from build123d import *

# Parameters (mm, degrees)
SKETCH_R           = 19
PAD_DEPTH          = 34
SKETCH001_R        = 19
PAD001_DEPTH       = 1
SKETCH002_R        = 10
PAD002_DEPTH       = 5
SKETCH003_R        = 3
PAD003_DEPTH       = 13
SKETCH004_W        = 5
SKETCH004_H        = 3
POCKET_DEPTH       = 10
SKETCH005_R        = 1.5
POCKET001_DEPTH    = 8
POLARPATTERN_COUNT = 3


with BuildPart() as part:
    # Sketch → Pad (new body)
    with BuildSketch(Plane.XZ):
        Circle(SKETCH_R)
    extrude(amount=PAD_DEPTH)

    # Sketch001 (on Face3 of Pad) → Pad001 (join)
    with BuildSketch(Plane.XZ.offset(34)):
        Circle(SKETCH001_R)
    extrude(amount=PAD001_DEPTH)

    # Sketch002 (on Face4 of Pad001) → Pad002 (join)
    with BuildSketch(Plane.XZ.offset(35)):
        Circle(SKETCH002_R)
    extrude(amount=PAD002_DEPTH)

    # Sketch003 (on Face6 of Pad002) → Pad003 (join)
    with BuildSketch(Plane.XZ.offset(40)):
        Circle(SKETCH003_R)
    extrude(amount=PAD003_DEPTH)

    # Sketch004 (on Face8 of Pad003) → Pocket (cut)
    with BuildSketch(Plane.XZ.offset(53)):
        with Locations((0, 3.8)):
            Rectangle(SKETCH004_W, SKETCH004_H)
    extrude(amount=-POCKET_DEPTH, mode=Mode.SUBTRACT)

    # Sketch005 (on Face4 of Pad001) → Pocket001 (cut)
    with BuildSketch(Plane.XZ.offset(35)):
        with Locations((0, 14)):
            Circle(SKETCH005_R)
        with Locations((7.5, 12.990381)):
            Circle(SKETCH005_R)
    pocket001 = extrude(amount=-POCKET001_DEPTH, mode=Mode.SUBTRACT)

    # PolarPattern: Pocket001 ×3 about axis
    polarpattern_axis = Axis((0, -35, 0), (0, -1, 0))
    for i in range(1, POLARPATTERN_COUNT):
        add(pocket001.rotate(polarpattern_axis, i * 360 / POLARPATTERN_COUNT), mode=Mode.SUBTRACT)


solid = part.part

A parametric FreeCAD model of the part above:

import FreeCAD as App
import Part
import Sketcher
Q = App.Units.Quantity

doc = App.newDocument("Part")
body = doc.addObject("PartDesign::Body", "Body")

# Sketch on XZ plane
sketch1 = doc.addObject("Sketcher::SketchObject", "Sketch")
body.addObject(sketch1)
sketch1.AttachmentSupport = (doc.XZ_Plane, [""])
sketch1.MapMode = "FlatFace"
sketch1.addGeometry(Part.Circle(App.Vector(0, 0, 0), App.Vector(0, 0, 1), 19), False)
sketch1.addConstraint([
    Sketcher.Constraint("Coincident", 0, 3, -1, 1),
    Sketcher.Constraint("Diameter", 0, Q("38 mm")),
])
pad1 = doc.addObject("PartDesign::Pad", "Pad")
body.addObject(pad1)
pad1.Profile = sketch1
pad1.Length = 34

# Sketch on XZ plane
sketch2 = doc.addObject("Sketcher::SketchObject", "Sketch001")
body.addObject(sketch2)
sketch2.AttachmentSupport = (doc.XZ_Plane, [""])
sketch2.MapMode = "FlatFace"
sketch2.AttachmentOffset = App.Placement(App.Vector(0, 0, 34), App.Rotation())
sketch2.addGeometry(Part.Circle(App.Vector(0, 0, 0), App.Vector(0, 0, 1), 19), False)
sketch2.addConstraint([
    Sketcher.Constraint("Coincident", 0, 3, -1, 1),
    Sketcher.Constraint("Diameter", 0, Q("38 mm")),
])
pad2 = doc.addObject("PartDesign::Pad", "Pad001")
body.addObject(pad2)
pad2.Profile = sketch2
pad2.Length = 1

# Sketch on XZ plane
sketch3 = doc.addObject("Sketcher::SketchObject", "Sketch002")
body.addObject(sketch3)
sketch3.AttachmentSupport = (doc.XZ_Plane, [""])
sketch3.MapMode = "FlatFace"
sketch3.AttachmentOffset = App.Placement(App.Vector(0, 0, 35), App.Rotation())
sketch3.addGeometry(Part.Circle(App.Vector(0, 0, 0), App.Vector(0, 0, 1), 10), False)
sketch3.addConstraint([
    Sketcher.Constraint("Coincident", 0, 3, -1, 1),
    Sketcher.Constraint("Diameter", 0, Q("20 mm")),
])
pad3 = doc.addObject("PartDesign::Pad", "Pad002")
body.addObject(pad3)
pad3.Profile = sketch3
pad3.Length = 5

# Sketch on XZ plane
sketch4 = doc.addObject("Sketcher::SketchObject", "Sketch003")
body.addObject(sketch4)
sketch4.AttachmentSupport = (doc.XZ_Plane, [""])
sketch4.MapMode = "FlatFace"
sketch4.AttachmentOffset = App.Placement(App.Vector(0, 0, 40), App.Rotation())
sketch4.addGeometry(Part.Circle(App.Vector(0, 0, 0), App.Vector(0, 0, 1), 3), False)
sketch4.addConstraint([
    Sketcher.Constraint("Coincident", 0, 3, -1, 1),
    Sketcher.Constraint("Diameter", 0, Q("6 mm")),
])
pad4 = doc.addObject("PartDesign::Pad", "Pad003")
body.addObject(pad4)
pad4.Profile = sketch4
pad4.Length = 13

# Sketch on XZ plane
sketch5 = doc.addObject("Sketcher::SketchObject", "Sketch004")
body.addObject(sketch5)
sketch5.AttachmentSupport = (doc.XZ_Plane, [""])
sketch5.MapMode = "FlatFace"
sketch5.AttachmentOffset = App.Placement(App.Vector(0, 0, 53), App.Rotation())
sketch5.addGeometry([
    Part.LineSegment(App.Vector(-2.5, 5.3, 0), App.Vector(-2.5, 2.3, 0)),
    Part.LineSegment(App.Vector(-2.5, 2.3, 0), App.Vector(2.5, 2.3, 0)),
    Part.LineSegment(App.Vector(2.5, 2.3, 0), App.Vector(2.5, 5.3, 0)),
    Part.LineSegment(App.Vector(2.5, 5.3, 0), App.Vector(-2.5, 5.3, 0)),
], False)
sketch5.addConstraint([
    Sketcher.Constraint("Coincident", 0, 2, 1, 1),
    Sketcher.Constraint("Coincident", 1, 2, 2, 1),
    Sketcher.Constraint("Coincident", 2, 2, 3, 1),
    Sketcher.Constraint("Coincident", 3, 2, 0, 1),
    Sketcher.Constraint("Vertical", 0),
    Sketcher.Constraint("Horizontal", 1),
    Sketcher.Constraint("Vertical", 2),
    Sketcher.Constraint("Horizontal", 3),
    Sketcher.Constraint("DistanceX", 1, 1, 1, 2, Q("5 mm")),
    Sketcher.Constraint("DistanceY", 0, 2, 0, 1, Q("3 mm")),
    Sketcher.Constraint("DistanceX", 0, 2, -1, 1, Q("2.5 mm")),
    Sketcher.Constraint("DistanceY", -1, 1, 0, 2, Q("2.3 mm")),
])
pocket1 = doc.addObject("PartDesign::Pocket", "Pocket")
body.addObject(pocket1)
pocket1.Profile = sketch5
pocket1.Length = 10

# Sketch on XZ plane
sketch6 = doc.addObject("Sketcher::SketchObject", "Sketch005")
body.addObject(sketch6)
sketch6.AttachmentSupport = (doc.XZ_Plane, [""])
sketch6.MapMode = "FlatFace"
sketch6.AttachmentOffset = App.Placement(App.Vector(0, 0, 35), App.Rotation())
sketch6.addGeometry([
    Part.Circle(App.Vector(0, 14, 0), App.Vector(0, 0, 1), 1.5),
    Part.Circle(App.Vector(7.5, 13, 0), App.Vector(0, 0, 1), 1.5),
], False)
sketch6.addConstraint([
    Sketcher.Constraint("Equal", 0, 1),
    Sketcher.Constraint("PointOnObject", 0, 3, -2),
    Sketcher.Constraint("Diameter", 0, Q("3 mm")),
    Sketcher.Constraint("DistanceY", -1, 1, 0, 3, Q("14 mm")),
    Sketcher.Constraint("DistanceX", -1, 1, 1, 3, Q("7.5 mm")),
    Sketcher.Constraint("DistanceY", -1, 1, 1, 3, Q("12.990381 mm")),
])
pocket2 = doc.addObject("PartDesign::Pocket", "Pocket001")
body.addObject(pocket2)
pocket2.Profile = sketch6
pocket2.Length = 8
doc.recompute()

polarpattern = doc.addObject("PartDesign::PolarPattern", "PolarPattern")
body.addObject(polarpattern)
polarpattern.Originals = [pocket2]
polarpattern.Axis = (doc.Y_Axis, [""])
polarpattern.Angle = 360
polarpattern.Occurrences = 3
body.Tip = polarpattern

doc.recompute()
